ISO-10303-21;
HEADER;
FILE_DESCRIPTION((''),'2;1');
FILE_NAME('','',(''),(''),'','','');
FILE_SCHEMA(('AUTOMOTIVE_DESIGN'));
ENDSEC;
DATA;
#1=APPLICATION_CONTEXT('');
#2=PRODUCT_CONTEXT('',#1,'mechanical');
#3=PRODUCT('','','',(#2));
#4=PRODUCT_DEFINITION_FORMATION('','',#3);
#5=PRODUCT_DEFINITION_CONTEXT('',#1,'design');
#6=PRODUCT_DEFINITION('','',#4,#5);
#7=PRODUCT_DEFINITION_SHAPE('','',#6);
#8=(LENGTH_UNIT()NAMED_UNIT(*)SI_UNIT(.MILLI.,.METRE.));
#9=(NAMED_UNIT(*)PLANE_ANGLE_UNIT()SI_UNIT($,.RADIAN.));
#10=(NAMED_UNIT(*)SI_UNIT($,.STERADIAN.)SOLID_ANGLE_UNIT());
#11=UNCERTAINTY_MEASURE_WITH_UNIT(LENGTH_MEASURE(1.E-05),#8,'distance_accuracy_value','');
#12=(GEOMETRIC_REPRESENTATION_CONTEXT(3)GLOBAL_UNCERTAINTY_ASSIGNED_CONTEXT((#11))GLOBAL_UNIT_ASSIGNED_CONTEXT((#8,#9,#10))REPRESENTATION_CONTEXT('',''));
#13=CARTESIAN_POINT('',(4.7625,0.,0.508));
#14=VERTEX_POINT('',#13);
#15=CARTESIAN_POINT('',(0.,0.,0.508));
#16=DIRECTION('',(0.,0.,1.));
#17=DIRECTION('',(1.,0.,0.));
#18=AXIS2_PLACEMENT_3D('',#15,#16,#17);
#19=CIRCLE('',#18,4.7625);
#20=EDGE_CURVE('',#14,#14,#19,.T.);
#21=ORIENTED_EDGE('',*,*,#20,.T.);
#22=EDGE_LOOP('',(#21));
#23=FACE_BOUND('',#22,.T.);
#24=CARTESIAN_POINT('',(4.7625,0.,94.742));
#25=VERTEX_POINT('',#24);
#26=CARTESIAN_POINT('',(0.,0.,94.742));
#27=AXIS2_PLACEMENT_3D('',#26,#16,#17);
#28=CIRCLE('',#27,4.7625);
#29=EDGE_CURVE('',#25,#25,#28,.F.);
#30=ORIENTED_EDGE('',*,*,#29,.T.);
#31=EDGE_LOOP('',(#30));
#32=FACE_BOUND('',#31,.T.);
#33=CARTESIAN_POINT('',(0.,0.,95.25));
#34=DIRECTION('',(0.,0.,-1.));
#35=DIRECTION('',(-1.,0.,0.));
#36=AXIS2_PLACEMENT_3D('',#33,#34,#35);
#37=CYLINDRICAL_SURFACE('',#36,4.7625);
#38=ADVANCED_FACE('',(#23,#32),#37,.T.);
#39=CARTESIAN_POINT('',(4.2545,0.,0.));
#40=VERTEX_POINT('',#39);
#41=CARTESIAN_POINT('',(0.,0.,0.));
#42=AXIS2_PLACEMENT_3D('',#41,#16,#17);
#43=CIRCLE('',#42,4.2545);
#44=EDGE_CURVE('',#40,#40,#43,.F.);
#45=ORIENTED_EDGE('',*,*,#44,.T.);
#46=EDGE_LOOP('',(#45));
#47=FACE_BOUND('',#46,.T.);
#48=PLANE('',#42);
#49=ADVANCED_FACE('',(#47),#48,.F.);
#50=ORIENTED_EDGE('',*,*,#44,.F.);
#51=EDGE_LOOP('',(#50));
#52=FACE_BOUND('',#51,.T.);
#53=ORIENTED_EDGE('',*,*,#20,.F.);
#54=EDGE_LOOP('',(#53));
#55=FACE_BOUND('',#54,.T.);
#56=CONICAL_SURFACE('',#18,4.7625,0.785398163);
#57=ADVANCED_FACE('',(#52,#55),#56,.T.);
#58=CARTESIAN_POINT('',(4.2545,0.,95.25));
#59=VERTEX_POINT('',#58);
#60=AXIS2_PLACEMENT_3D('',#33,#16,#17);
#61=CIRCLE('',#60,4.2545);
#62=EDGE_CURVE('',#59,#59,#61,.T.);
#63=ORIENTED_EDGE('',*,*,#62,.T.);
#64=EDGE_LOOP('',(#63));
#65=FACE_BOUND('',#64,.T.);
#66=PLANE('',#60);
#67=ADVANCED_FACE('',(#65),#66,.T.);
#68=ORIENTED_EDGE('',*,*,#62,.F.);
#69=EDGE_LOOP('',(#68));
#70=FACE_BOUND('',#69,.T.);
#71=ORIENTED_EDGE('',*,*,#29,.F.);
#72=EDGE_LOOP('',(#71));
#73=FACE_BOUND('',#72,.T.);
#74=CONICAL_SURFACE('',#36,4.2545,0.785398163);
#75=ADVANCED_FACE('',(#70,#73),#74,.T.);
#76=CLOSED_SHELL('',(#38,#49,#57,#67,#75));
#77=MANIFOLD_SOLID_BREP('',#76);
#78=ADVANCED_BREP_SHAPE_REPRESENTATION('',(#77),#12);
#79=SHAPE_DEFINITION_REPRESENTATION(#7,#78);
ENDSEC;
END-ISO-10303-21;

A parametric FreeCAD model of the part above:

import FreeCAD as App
import Part
import Sketcher
Q = App.Units.Quantity


def edges_at(feature, points):
    """Names of the edges that pass closest to the given points."""
    edges = feature.Shape.Edges
    near = lambda p: min(range(len(edges)), key=lambda i: edges[i].distToShape(Part.Vertex(*p))[0])
    return sorted({f"Edge{near(p) + 1}" for p in points})

doc = App.newDocument("Part")
body = doc.addObject("PartDesign::Body", "Body")

# Sketch on XY plane
sketch1 = body.newObject("Sketcher::SketchObject", "Sketch")
sketch1.AttachmentSupport = (doc.getObject("XY_Plane"), [""])
sketch1.MapMode = "FlatFace"
sketch1.addGeometry(Part.Circle(App.Vector(0, 0, 0), App.Vector(0, 0, 1), 4.7625), False)
sketch1.addConstraint([
    Sketcher.Constraint("Coincident", 0, 3, -1, 1),
    Sketcher.Constraint("Diameter", 0, Q("0.375 in")),
])
pad1 = body.newObject("PartDesign::Pad", "Pad")
pad1.Profile = sketch1
pad1.Length = Q("3.75 in")
doc.recompute()

chamfer = body.newObject("PartDesign::Chamfer", "Chamfer")
chamfer.Base = (pad1, edges_at(pad1, [(-4.763, 0, 0), (-4.763, 0, 95.25)]))
chamfer.Size = Q("0.02 in")

doc.recompute()
